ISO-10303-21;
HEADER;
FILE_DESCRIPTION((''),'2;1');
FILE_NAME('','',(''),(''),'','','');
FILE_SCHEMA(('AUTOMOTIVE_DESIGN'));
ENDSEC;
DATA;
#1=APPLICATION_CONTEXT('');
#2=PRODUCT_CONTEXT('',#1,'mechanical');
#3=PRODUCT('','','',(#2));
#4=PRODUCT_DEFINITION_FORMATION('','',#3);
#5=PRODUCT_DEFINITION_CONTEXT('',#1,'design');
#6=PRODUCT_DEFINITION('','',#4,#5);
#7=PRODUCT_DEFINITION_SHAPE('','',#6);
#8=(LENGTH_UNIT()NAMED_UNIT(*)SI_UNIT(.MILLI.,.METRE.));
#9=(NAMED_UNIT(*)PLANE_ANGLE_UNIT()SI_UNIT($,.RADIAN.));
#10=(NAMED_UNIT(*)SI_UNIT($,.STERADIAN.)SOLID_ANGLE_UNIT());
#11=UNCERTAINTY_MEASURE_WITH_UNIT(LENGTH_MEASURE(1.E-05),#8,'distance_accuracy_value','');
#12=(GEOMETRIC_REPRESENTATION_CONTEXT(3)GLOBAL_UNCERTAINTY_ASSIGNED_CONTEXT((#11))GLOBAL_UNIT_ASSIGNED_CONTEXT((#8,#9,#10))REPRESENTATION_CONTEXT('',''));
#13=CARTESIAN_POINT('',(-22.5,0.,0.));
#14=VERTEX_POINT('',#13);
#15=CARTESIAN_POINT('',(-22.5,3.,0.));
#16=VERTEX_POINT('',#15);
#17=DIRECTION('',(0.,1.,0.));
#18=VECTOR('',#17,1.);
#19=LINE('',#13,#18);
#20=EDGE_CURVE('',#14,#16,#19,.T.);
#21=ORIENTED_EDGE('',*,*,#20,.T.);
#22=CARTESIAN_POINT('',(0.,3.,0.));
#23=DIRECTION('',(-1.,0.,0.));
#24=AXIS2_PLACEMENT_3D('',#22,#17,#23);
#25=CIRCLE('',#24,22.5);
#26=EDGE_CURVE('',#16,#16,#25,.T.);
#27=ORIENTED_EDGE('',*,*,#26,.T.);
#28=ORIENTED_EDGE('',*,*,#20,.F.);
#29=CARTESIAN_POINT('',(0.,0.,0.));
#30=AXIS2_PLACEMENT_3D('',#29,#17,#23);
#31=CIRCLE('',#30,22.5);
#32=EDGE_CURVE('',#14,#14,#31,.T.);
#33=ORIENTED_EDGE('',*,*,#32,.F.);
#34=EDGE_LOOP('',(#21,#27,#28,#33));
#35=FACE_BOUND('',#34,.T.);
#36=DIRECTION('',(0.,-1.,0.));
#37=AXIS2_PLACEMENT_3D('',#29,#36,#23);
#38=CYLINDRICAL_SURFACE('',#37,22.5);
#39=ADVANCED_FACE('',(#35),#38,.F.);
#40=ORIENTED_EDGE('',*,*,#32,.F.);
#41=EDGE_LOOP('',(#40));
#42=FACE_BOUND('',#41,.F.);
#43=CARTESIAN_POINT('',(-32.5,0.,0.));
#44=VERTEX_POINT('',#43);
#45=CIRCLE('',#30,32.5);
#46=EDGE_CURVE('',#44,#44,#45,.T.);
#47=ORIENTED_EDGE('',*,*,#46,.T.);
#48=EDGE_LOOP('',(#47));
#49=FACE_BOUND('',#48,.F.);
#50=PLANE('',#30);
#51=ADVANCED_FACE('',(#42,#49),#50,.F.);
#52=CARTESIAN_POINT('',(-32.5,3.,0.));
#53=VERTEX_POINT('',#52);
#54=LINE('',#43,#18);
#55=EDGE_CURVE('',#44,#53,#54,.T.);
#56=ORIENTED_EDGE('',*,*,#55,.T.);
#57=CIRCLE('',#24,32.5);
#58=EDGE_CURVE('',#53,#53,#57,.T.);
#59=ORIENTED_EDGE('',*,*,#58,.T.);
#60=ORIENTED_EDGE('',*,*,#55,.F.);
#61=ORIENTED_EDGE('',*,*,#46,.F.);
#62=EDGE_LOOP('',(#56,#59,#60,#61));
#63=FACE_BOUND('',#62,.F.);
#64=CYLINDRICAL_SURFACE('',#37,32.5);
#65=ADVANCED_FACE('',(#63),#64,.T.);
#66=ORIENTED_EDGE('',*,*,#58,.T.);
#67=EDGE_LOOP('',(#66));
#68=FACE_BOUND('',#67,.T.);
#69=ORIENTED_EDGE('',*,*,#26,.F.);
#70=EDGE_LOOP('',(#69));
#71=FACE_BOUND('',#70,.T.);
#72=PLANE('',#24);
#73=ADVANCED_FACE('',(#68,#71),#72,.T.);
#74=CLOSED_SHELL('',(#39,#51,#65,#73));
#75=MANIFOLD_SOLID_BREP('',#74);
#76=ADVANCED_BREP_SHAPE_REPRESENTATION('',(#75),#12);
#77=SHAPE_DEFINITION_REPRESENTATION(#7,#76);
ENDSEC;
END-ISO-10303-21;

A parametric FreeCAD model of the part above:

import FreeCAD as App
import Part
import Sketcher

V = App.Vector

doc = App.newDocument("Part")
body = doc.addObject("PartDesign::Body", "Body")

# Sketch on XZ plane
sketch1 = body.newObject("Sketcher::SketchObject", "Sketch")
sketch1.AttachmentSupport = (doc.getObject("XZ_Plane"), [""])
sketch1.MapMode = "FlatFace"
sketch1.addGeometry(Part.Circle(V(0, 0, 0), V(0, 0, 1), 32), False)
sketch1.addGeometry(Part.Circle(V(0, 0, 0), V(0, 0, 1), 22), False)
sketch1.addConstraint(Sketcher.Constraint("Coincident", 0, 3, -1, 1))
sketch1.addConstraint(Sketcher.Constraint("Coincident", 1, 3, -1, 1))
sketch1.addConstraint(Sketcher.Constraint("Diameter", 0, 65.0))
sketch1.addConstraint(Sketcher.Constraint("Diameter", 1, 45.0))
pad1 = body.newObject("PartDesign::Pad", "Pad")
pad1.Profile = sketch1
pad1.Length = 3
pad1.Reversed = True

doc.recompute()
